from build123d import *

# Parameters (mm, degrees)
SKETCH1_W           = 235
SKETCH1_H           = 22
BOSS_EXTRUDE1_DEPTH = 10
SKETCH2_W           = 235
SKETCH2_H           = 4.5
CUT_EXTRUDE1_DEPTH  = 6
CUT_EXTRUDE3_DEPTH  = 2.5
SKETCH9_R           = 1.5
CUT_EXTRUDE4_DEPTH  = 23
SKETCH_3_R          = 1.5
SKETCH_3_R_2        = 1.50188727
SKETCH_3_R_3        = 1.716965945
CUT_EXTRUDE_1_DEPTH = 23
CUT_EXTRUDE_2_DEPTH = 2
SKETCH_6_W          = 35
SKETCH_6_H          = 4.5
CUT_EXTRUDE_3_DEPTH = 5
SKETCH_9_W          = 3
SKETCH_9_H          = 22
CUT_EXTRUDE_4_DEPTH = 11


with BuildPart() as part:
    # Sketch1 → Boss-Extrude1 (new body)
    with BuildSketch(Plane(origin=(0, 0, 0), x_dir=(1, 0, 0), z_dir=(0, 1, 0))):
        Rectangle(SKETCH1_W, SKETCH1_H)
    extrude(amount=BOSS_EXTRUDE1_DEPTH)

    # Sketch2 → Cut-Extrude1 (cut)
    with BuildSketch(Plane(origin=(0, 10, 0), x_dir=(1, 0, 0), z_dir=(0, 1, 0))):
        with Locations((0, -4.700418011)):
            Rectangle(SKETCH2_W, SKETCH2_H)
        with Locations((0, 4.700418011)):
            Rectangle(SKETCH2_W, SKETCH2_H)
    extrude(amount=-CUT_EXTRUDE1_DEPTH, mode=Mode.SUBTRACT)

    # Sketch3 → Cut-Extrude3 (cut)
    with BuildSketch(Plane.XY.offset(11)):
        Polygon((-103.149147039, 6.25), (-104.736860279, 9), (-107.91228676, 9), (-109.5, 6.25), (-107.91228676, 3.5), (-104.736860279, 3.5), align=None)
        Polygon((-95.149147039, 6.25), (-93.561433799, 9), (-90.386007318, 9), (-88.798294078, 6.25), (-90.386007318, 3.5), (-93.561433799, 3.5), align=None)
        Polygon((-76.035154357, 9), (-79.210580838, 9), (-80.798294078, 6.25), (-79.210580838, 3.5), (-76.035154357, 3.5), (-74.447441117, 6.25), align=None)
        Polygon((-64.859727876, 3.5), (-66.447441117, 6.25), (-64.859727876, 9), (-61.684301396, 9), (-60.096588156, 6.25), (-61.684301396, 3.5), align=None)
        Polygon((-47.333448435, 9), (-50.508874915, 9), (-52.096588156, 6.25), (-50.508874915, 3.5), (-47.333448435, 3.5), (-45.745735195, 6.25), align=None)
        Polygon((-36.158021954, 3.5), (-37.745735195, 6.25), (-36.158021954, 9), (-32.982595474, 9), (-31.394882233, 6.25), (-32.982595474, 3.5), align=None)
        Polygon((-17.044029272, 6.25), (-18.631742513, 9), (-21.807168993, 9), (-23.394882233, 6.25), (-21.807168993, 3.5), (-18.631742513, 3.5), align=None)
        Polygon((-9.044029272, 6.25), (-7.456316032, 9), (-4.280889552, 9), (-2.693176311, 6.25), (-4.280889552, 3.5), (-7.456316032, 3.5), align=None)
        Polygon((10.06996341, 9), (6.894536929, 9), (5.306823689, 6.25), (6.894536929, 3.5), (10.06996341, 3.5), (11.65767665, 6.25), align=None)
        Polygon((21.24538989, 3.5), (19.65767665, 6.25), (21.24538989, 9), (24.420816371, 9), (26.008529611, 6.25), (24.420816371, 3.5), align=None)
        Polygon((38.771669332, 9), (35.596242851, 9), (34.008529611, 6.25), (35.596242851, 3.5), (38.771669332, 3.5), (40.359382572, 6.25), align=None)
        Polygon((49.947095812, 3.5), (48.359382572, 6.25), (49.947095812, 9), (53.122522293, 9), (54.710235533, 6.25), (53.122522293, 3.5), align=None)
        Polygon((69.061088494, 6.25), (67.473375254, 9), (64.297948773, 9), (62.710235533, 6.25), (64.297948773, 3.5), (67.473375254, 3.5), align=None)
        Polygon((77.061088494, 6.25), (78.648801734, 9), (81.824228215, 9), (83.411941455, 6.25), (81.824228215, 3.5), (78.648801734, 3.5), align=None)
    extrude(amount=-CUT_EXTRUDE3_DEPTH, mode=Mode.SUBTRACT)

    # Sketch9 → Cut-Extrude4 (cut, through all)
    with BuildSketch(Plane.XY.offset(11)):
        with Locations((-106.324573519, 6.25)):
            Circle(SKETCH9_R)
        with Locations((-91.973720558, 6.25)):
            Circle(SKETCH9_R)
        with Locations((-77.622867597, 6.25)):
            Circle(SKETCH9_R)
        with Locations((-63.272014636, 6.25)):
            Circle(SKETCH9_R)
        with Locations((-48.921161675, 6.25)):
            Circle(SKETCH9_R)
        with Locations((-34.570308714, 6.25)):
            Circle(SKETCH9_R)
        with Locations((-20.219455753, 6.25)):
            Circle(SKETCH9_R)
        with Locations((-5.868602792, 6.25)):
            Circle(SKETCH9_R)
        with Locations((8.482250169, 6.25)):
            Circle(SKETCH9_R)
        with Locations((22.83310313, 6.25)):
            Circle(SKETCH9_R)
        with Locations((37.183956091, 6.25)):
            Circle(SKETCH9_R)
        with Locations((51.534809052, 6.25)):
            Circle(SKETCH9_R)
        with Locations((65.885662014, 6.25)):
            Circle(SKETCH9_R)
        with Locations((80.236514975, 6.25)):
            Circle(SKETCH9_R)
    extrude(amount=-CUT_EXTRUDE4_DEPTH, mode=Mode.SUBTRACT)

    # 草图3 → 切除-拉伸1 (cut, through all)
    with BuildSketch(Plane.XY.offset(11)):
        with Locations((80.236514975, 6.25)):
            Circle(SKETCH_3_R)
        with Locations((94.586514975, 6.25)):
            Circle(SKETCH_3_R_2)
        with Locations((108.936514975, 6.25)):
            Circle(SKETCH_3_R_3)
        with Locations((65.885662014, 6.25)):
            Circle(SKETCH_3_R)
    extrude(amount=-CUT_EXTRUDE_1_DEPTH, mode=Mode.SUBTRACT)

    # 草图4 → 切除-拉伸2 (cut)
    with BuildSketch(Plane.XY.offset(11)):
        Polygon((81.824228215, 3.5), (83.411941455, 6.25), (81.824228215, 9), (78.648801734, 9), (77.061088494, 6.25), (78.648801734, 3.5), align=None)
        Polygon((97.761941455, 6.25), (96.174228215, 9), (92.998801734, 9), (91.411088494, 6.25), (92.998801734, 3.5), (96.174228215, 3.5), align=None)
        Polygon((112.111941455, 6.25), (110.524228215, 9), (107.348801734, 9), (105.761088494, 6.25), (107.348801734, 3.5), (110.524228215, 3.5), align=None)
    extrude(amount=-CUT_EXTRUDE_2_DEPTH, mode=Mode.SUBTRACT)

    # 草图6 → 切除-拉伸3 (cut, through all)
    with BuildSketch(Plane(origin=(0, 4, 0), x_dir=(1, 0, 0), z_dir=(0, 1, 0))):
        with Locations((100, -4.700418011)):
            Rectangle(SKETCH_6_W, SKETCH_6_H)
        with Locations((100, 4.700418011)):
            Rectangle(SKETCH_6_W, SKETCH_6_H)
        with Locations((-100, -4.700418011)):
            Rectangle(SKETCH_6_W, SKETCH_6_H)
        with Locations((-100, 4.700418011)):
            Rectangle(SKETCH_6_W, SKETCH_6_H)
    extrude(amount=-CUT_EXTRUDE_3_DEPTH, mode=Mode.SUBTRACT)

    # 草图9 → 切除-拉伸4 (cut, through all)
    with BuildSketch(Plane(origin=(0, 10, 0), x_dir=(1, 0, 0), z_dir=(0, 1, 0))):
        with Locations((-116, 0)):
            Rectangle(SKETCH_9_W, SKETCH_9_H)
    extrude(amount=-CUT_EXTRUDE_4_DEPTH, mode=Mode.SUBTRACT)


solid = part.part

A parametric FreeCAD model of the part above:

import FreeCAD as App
import Part
import Sketcher
Q = App.Units.Quantity

doc = App.newDocument("Part")
body = doc.addObject("PartDesign::Body", "Body")

sketch1 = body.newObject("Sketcher::SketchObject", "Sketch")
sketch1.AttachmentSupport = (doc.getObject("XZ_Plane"), [""])
sketch1.MapMode = "FlatFace"
sketch1.addGeometry([
    Part.LineSegment(App.Vector(-118, -11, 0), App.Vector(-118, 11, 0)),
    Part.LineSegment(App.Vector(-118, 11, 0), App.Vector(118, 11, 0)),
    Part.LineSegment(App.Vector(118, 11, 0), App.Vector(118, -11, 0)),
    Part.LineSegment(App.Vector(118, -11, 0), App.Vector(-118, -11, 0)),
], False)
sketch1.addConstraint([
    Sketcher.Constraint("Coincident", 0, 2, 1, 1),
    Sketcher.Constraint("Coincident", 1, 2, 2, 1),
    Sketcher.Constraint("Coincident", 2, 2, 3, 1),
    Sketcher.Constraint("Coincident", 3, 2, 0, 1),
    Sketcher.Constraint("Vertical", 0),
    Sketcher.Constraint("Horizontal", 1),
    Sketcher.Constraint("Vertical", 2),
    Sketcher.Constraint("Horizontal", 3),
    Sketcher.Constraint("Symmetric", 0, 2, 2, 2, -1, 1),
    Sketcher.Constraint("DistanceX", 1, 1, 1, 2, 235.0),
    Sketcher.Constraint("DistanceY", 0, 1, 0, 2, 22.0),
])
pad1 = body.newObject("PartDesign::Pad", "Pad")
pad1.Profile = sketch1
pad1.Length = 10
pad1.Reversed = True

sketch2 = body.newObject("Sketcher::SketchObject", "Sketch001")
sketch2.AttachmentSupport = (doc.getObject("XZ_Plane"), [""])
sketch2.MapMode = "FlatFace"
sketch2.AttachmentOffset = App.Placement(App.Vector(0, 0, -10), App.Rotation())
sketch2.addGeometry([
    Part.LineSegment(App.Vector(-117.5, 2.5, 0), App.Vector(-117.5, 7, 0)),
    Part.LineSegment(App.Vector(-117.5, 7, 0), App.Vector(117.5, 7, 0)),
    Part.LineSegment(App.Vector(117.5, 7, 0), App.Vector(117.5, 2.5, 0)),
    Part.LineSegment(App.Vector(117.5, 2.5, 0), App.Vector(-117.5, 2.5, 0)),
    Part.LineSegment(App.Vector(-117.5, -7, 0), App.Vector(-117.5, -2.5, 0)),
    Part.LineSegment(App.Vector(-117.5, -2.5, 0), App.Vector(117.5, -2.5, 0)),
    Part.LineSegment(App.Vector(117.5, -2.5, 0), App.Vector(117.5, -7, 0)),
    Part.LineSegment(App.Vector(117.5, -7, 0), App.Vector(-117.5, -7, 0)),
], False)
sketch2.addConstraint([
    Sketcher.Constraint("Coincident", 0, 2, 1, 1),
    Sketcher.Constraint("Coincident", 1, 2, 2, 1),
    Sketcher.Constraint("Coincident", 2, 2, 3, 1),
    Sketcher.Constraint("Coincident", 3, 2, 0, 1),
    Sketcher.Constraint("Coincident", 4, 2, 5, 1),
    Sketcher.Constraint("Coincident", 5, 2, 6, 1),
    Sketcher.Constraint("Coincident", 6, 2, 7, 1),
    Sketcher.Constraint("Coincident", 7, 2, 4, 1),
    Sketcher.Constraint("Vertical", 0),
    Sketcher.Constraint("Horizontal", 1),
    Sketcher.Constraint("Vertical", 2),
    Sketcher.Constraint("Horizontal", 3),
    Sketcher.Constraint("Vertical", 4),
    Sketcher.Constraint("Horizontal", 5),
    Sketcher.Constraint("Vertical", 6),
    Sketcher.Constraint("Horizontal", 7),
    Sketcher.Constraint("Symmetric", 2, 2, 4, 2, -1, 1),
    Sketcher.Constraint("Symmetric", 0, 2, 6, 2, -1, 1),
    Sketcher.Constraint("Vertical", 3, 2, 4, 2),
    Sketcher.Constraint("DistanceX", 1, 1, 1, 2, 235.0),
    Sketcher.Constraint("DistanceY", 0, 1, 0, 2, 4.5),
    Sketcher.Constraint("DistanceY", -1, 1, 0, 2, 6.950418),
])
pocket1 = body.newObject("PartDesign::Pocket", "Pocket")
pocket1.Profile = sketch2
pocket1.Length = 6
pocket1.Reversed = True

sketch3 = body.newObject("Sketcher::SketchObject", "Sketch002")
sketch3.AttachmentSupport = (doc.getObject("XY_Plane"), [""])
sketch3.MapMode = "FlatFace"
sketch3.AttachmentOffset = App.Placement(App.Vector(0, 0, 11), App.Rotation())
sketch3.addGeometry([
    Part.LineSegment(App.Vector(-103.1, 6.2, 0), App.Vector(-104.7, 9, 0)),
    Part.LineSegment(App.Vector(-104.7, 9, 0), App.Vector(-107.9, 9, 0)),
    Part.LineSegment(App.Vector(-107.9, 9, 0), App.Vector(-109.5, 6.2, 0)),
    Part.LineSegment(App.Vector(-109.5, 6.2, 0), App.Vector(-107.9, 3.5, 0)),
    Part.LineSegment(App.Vector(-107.9, 3.5, 0), App.Vector(-104.7, 3.5, 0)),
    Part.LineSegment(App.Vector(-104.7, 3.5, 0), App.Vector(-103.1, 6.2, 0)),
    Part.LineSegment(App.Vector(-93.6, 9, 0), App.Vector(-95.1, 6.2, 0)),
    Part.LineSegment(App.Vector(-95.1, 6.2, 0), App.Vector(-93.6, 3.5, 0)),
    Part.LineSegment(App.Vector(-93.6, 3.5, 0), App.Vector(-90.4, 3.5, 0)),
    Part.LineSegment(App.Vector(-90.4, 3.5, 0), App.Vector(-88.8, 6.2, 0)),
    Part.LineSegment(App.Vector(-88.8, 6.2, 0), App.Vector(-90.4, 9, 0)),
    Part.LineSegment(App.Vector(-90.4, 9, 0), App.Vector(-93.6, 9, 0)),
    Part.LineSegment(App.Vector(-76, 9, 0), App.Vector(-79.2, 9, 0)),
    Part.LineSegment(App.Vector(-79.2, 9, 0), App.Vector(-80.8, 6.2, 0)),
    Part.LineSegment(App.Vector(-80.8, 6.2, 0), App.Vector(-79.2, 3.5, 0)),
    Part.LineSegment(App.Vector(-79.2, 3.5, 0), App.Vector(-76, 3.5, 0)),
    Part.LineSegment(App.Vector(-76, 3.5, 0), App.Vector(-74.4, 6.2, 0)),
    Part.LineSegment(App.Vector(-74.4, 6.2, 0), App.Vector(-76, 9, 0)),
    Part.LineSegment(App.Vector(-66.4, 6.2, 0), App.Vector(-64.9, 3.5, 0)),
    Part.LineSegment(App.Vector(-64.9, 3.5, 0), App.Vector(-61.7, 3.5, 0)),
    Part.LineSegment(App.Vector(-61.7, 3.5, 0), App.Vector(-60.1, 6.2, 0)),
    Part.LineSegment(App.Vector(-60.1, 6.2, 0), App.Vector(-61.7, 9, 0)),
    Part.LineSegment(App.Vector(-61.7, 9, 0), App.Vector(-64.9, 9, 0)),
    Part.LineSegment(App.Vector(-64.9, 9, 0), App.Vector(-66.4, 6.2, 0)),
    Part.LineSegment(App.Vector(-47.3, 9, 0), App.Vector(-50.5, 9, 0)),
    Part.LineSegment(App.Vector(-50.5, 9, 0), App.Vector(-52.1, 6.2, 0)),
    Part.LineSegment(App.Vector(-52.1, 6.2, 0), App.Vector(-50.5, 3.5, 0)),
    Part.LineSegment(App.Vector(-50.5, 3.5, 0), App.Vector(-47.3, 3.5, 0)),
    Part.LineSegment(App.Vector(-47.3, 3.5, 0), App.Vector(-45.7, 6.2, 0)),
    Part.LineSegment(App.Vector(-45.7, 6.2, 0), App.Vector(-47.3, 9, 0)),
    Part.LineSegment(App.Vector(-37.7, 6.2, 0), App.Vector(-36.2, 3.5, 0)),
    Part.LineSegment(App.Vector(-36.2, 3.5, 0), App.Vector(-33, 3.5, 0)),
    Part.LineSegment(App.Vector(-33, 3.5, 0), App.Vector(-31.4, 6.2, 0)),
    Part.LineSegment(App.Vector(-31.4, 6.2, 0), App.Vector(-33, 9, 0)),
    Part.LineSegment(App.Vector(-33, 9, 0), App.Vector(-36.2, 9, 0)),
    Part.LineSegment(App.Vector(-36.2, 9, 0), App.Vector(-37.7, 6.2, 0)),
    Part.LineSegment(App.Vector(-17, 6.2, 0), App.Vector(-18.6, 9, 0)),
    Part.LineSegment(App.Vector(-18.6, 9, 0), App.Vector(-21.8, 9, 0)),
    Part.LineSegment(App.Vector(-21.8, 9, 0), App.Vector(-23.4, 6.2, 0)),
    Part.LineSegment(App.Vector(-23.4, 6.2, 0), App.Vector(-21.8, 3.5, 0)),
    Part.LineSegment(App.Vector(-21.8, 3.5, 0), App.Vector(-18.6, 3.5, 0)),
    Part.LineSegment(App.Vector(-18.6, 3.5, 0), App.Vector(-17, 6.2, 0)),
    Part.LineSegment(App.Vector(-7.5, 9, 0), App.Vector(-9, 6.2, 0)),
    Part.LineSegment(App.Vector(-9, 6.2, 0), App.Vector(-7.5, 3.5, 0)),
    Part.LineSegment(App.Vector(-7.5, 3.5, 0), App.Vector(-4.3, 3.5, 0)),
    Part.LineSegment(App.Vector(-4.3, 3.5, 0), App.Vector(-2.7, 6.2, 0)),
    Part.LineSegment(App.Vector(-2.7, 6.2, 0), App.Vector(-4.3, 9, 0)),
    Part.LineSegment(App.Vector(-4.3, 9, 0), App.Vector(-7.5, 9, 0)),
    Part.LineSegment(App.Vector(10.1, 9, 0), App.Vector(6.9, 9, 0)),
    Part.LineSegment(App.Vector(6.9, 9, 0), App.Vector(5.3, 6.2, 0)),
    Part.LineSegment(App.Vector(5.3, 6.2, 0), App.Vector(6.9, 3.5, 0)),
    Part.LineSegment(App.Vector(6.9, 3.5, 0), App.Vector(10.1, 3.5, 0)),
    Part.LineSegment(App.Vector(10.1, 3.5, 0), App.Vector(11.7, 6.2, 0)),
    Part.LineSegment(App.Vector(11.7, 6.2, 0), App.Vector(10.1, 9, 0)),
    Part.LineSegment(App.Vector(19.7, 6.2, 0), App.Vector(21.2, 3.5, 0)),
    Part.LineSegment(App.Vector(21.2, 3.5, 0), App.Vector(24.4, 3.5, 0)),
    Part.LineSegment(App.Vector(24.4, 3.5, 0), App.Vector(26, 6.2, 0)),
    Part.LineSegment(App.Vector(26, 6.2, 0), App.Vector(24.4, 9, 0)),
    Part.LineSegment(App.Vector(24.4, 9, 0), App.Vector(21.2, 9, 0)),
    Part.LineSegment(App.Vector(21.2, 9, 0), App.Vector(19.7, 6.2, 0)),
    Part.LineSegment(App.Vector(38.8, 9, 0), App.Vector(35.6, 9, 0)),
    Part.LineSegment(App.Vector(35.6, 9, 0), App.Vector(34, 6.2, 0)),
    Part.LineSegment(App.Vector(34, 6.2, 0), App.Vector(35.6, 3.5, 0)),
    Part.LineSegment(App.Vector(35.6, 3.5, 0), App.Vector(38.8, 3.5, 0)),
    Part.LineSegment(App.Vector(38.8, 3.5, 0), App.Vector(40.4, 6.2, 0)),
    Part.LineSegment(App.Vector(40.4, 6.2, 0), App.Vector(38.8, 9, 0)),
    Part.LineSegment(App.Vector(48.4, 6.2, 0), App.Vector(49.9, 3.5, 0)),
    Part.LineSegment(App.Vector(49.9, 3.5, 0), App.Vector(53.1, 3.5, 0)),
    Part.LineSegment(App.Vector(53.1, 3.5, 0), App.Vector(54.7, 6.2, 0)),
    Part.LineSegment(App.Vector(54.7, 6.2, 0), App.Vector(53.1, 9, 0)),
    Part.LineSegment(App.Vector(53.1, 9, 0), App.Vector(49.9, 9, 0)),
    Part.LineSegment(App.Vector(49.9, 9, 0), App.Vector(48.4, 6.2, 0)),
    Part.LineSegment(App.Vector(69.1, 6.2, 0), App.Vector(67.5, 9, 0)),
    Part.LineSegment(App.Vector(67.5, 9, 0), App.Vector(64.3, 9, 0)),
    Part.LineSegment(App.Vector(64.3, 9, 0), App.Vector(62.7, 6.2, 0)),
    Part.LineSegment(App.Vector(62.7, 6.2, 0), App.Vector(64.3, 3.5, 0)),
    Part.LineSegment(App.Vector(64.3, 3.5, 0), App.Vector(67.5, 3.5, 0)),
    Part.LineSegment(App.Vector(67.5, 3.5, 0), App.Vector(69.1, 6.2, 0)),
    Part.LineSegment(App.Vector(78.6, 9, 0), App.Vector(77.1, 6.2, 0)),
    Part.LineSegment(App.Vector(77.1, 6.2, 0), App.Vector(78.6, 3.5, 0)),
    Part.LineSegment(App.Vector(78.6, 3.5, 0), App.Vector(81.8, 3.5, 0)),
    Part.LineSegment(App.Vector(81.8, 3.5, 0), App.Vector(83.4, 6.2, 0)),
    Part.LineSegment(App.Vector(83.4, 6.2, 0), App.Vector(81.8, 9, 0)),
    Part.LineSegment(App.Vector(81.8, 9, 0), App.Vector(78.6, 9, 0)),
], False)
sketch3.addConstraint([
    Sketcher.Constraint("Coincident", 0, 2, 1, 1),
    Sketcher.Constraint("Coincident", 1, 2, 2, 1),
    Sketcher.Constraint("Coincident", 2, 2, 3, 1),
    Sketcher.Constraint("Coincident", 3, 2, 4, 1),
    Sketcher.Constraint("Coincident", 4, 2, 5, 1),
    Sketcher.Constraint("Coincident", 5, 2, 0, 1),
    Sketcher.Constraint("Coincident", 6, 2, 7, 1),
    Sketcher.Constraint("Coincident", 7, 2, 8, 1),
    Sketcher.Constraint("Coincident", 8, 2, 9, 1),
    Sketcher.Constraint("Coincident", 9, 2, 10, 1),
    Sketcher.Constraint("Coincident", 10, 2, 11, 1),
    Sketcher.Constraint("Coincident", 11, 2, 6, 1),
    Sketcher.Constraint("Coincident", 12, 2, 13, 1),
    Sketcher.Constraint("Coincident", 13, 2, 14, 1),
    Sketcher.Constraint("Coincident", 14, 2, 15, 1),
    Sketcher.Constraint("Coincident", 15, 2, 16, 1),
    Sketcher.Constraint("Coincident", 16, 2, 17, 1),
    Sketcher.Constraint("Coincident", 17, 2, 12, 1),
    Sketcher.Constraint("Coincident", 18, 2, 19, 1),
    Sketcher.Constraint("Coincident", 19, 2, 20, 1),
    Sketcher.Constraint("Coincident", 20, 2, 21, 1),
    Sketcher.Constraint("Coincident", 21, 2, 22, 1),
    Sketcher.Constraint("Coincident", 22, 2, 23, 1),
    Sketcher.Constraint("Coincident", 23, 2, 18, 1),
    Sketcher.Constraint("Coincident", 24, 2, 25, 1),
    Sketcher.Constraint("Coincident", 25, 2, 26, 1),
    Sketcher.Constraint("Coincident", 26, 2, 27, 1),
    Sketcher.Constraint("Coincident", 27, 2, 28, 1),
    Sketcher.Constraint("Coincident", 28, 2, 29, 1),
    Sketcher.Constraint("Coincident", 29, 2, 24, 1),
    Sketcher.Constraint("Coincident", 30, 2, 31, 1),
    Sketcher.Constraint("Coincident", 31, 2, 32, 1),
    Sketcher.Constraint("Coincident", 32, 2, 33, 1),
    Sketcher.Constraint("Coincident", 33, 2, 34, 1),
    Sketcher.Constraint("Coincident", 34, 2, 35, 1),
    Sketcher.Constraint("Coincident", 35, 2, 30, 1),
    Sketcher.Constraint("Coincident", 36, 2, 37, 1),
    Sketcher.Constraint("Coincident", 37, 2, 38, 1),
    Sketcher.Constraint("Coincident", 38, 2, 39, 1),
    Sketcher.Constraint("Coincident", 39, 2, 40, 1),
    Sketcher.Constraint("Coincident", 40, 2, 41, 1),
    Sketcher.Constraint("Coincident", 41, 2, 36, 1),
    Sketcher.Constraint("Coincident", 42, 2, 43, 1),
    Sketcher.Constraint("Coincident", 43, 2, 44, 1),
    Sketcher.Constraint("Coincident", 44, 2, 45, 1),
    Sketcher.Constraint("Coincident", 45, 2, 46, 1),
    Sketcher.Constraint("Coincident", 46, 2, 47, 1),
    Sketcher.Constraint("Coincident", 47, 2, 42, 1),
    Sketcher.Constraint("Coincident", 48, 2, 49, 1),
    Sketcher.Constraint("Coincident", 49, 2, 50, 1),
    Sketcher.Constraint("Coincident", 50, 2, 51, 1),
    Sketcher.Constraint("Coincident", 51, 2, 52, 1),
    Sketcher.Constraint("Coincident", 52, 2, 53, 1),
    Sketcher.Constraint("Coincident", 53, 2, 48, 1),
    Sketcher.Constraint("Coincident", 54, 2, 55, 1),
    Sketcher.Constraint("Coincident", 55, 2, 56, 1),
    Sketcher.Constraint("Coincident", 56, 2, 57, 1),
    Sketcher.Constraint("Coincident", 57, 2, 58, 1),
    Sketcher.Constraint("Coincident", 58, 2, 59, 1),
    Sketcher.Constraint("Coincident", 59, 2, 54, 1),
    Sketcher.Constraint("Coincident", 60, 2, 61, 1),
    Sketcher.Constraint("Coincident", 61, 2, 62, 1),
    Sketcher.Constraint("Coincident", 62, 2, 63, 1),
    Sketcher.Constraint("Coincident", 63, 2, 64, 1),
    Sketcher.Constraint("Coincident", 64, 2, 65, 1),
    Sketcher.Constraint("Coincident", 65, 2, 60, 1),
    Sketcher.Constraint("Coincident", 66, 2, 67, 1),
    Sketcher.Constraint("Coincident", 67, 2, 68, 1),
    Sketcher.Constraint("Coincident", 68, 2, 69, 1),
    Sketcher.Constraint("Coincident", 69, 2, 70, 1),
    Sketcher.Constraint("Coincident", 70, 2, 71, 1),
    Sketcher.Constraint("Coincident", 71, 2, 66, 1),
    Sketcher.Constraint("Coincident", 72, 2, 73, 1),
    Sketcher.Constraint("Coincident", 73, 2, 74, 1),
    Sketcher.Constraint("Coincident", 74, 2, 75, 1),
    Sketcher.Constraint("Coincident", 75, 2, 76, 1),
    Sketcher.Constraint("Coincident", 76, 2, 77, 1),
    Sketcher.Constraint("Coincident", 77, 2, 72, 1),
    Sketcher.Constraint("Coincident", 78, 2, 79, 1),
    Sketcher.Constraint("Coincident", 79, 2, 80, 1),
    Sketcher.Constraint("Coincident", 80, 2, 81, 1),
    Sketcher.Constraint("Coincident", 81, 2, 82, 1),
    Sketcher.Constraint("Coincident", 82, 2, 83, 1),
    Sketcher.Constraint("Coincident", 83, 2, 78, 1),
    Sketcher.Constraint("Horizontal", 1),
    Sketcher.Constraint("Horizontal", 4),
    Sketcher.Constraint("Horizontal", 8),
    Sketcher.Constraint("Horizontal", 11),
    Sketcher.Constraint("Horizontal", 12),
    Sketcher.Constraint("Horizontal", 15),
    Sketcher.Constraint("Horizontal", 19),
    Sketcher.Constraint("Horizontal", 22),
    Sketcher.Constraint("Horizontal", 24),
    Sketcher.Constraint("Horizontal", 27),
    Sketcher.Constraint("Horizontal", 31),
    Sketcher.Constraint("Horizontal", 34),
    Sketcher.Constraint("Horizontal", 37),
    Sketcher.Constraint("Horizontal", 40),
    Sketcher.Constraint("Horizontal", 44),
    Sketcher.Constraint("Horizontal", 47),
    Sketcher.Constraint("Horizontal", 48),
    Sketcher.Constraint("Horizontal", 51),
    Sketcher.Constraint("Horizontal", 55),
    Sketcher.Constraint("Horizontal", 58),
    Sketcher.Constraint("Horizontal", 60),
    Sketcher.Constraint("Horizontal", 63),
    Sketcher.Constraint("Horizontal", 67),
    Sketcher.Constraint("Horizontal", 70),
    Sketcher.Constraint("Horizontal", 73),
    Sketcher.Constraint("Horizontal", 76),
    Sketcher.Constraint("Horizontal", 80),
    Sketcher.Constraint("Horizontal", 83),
    Sketcher.Constraint("Parallel", 0, 3),
    Sketcher.Constraint("Parallel", 2, 5),
    Sketcher.Constraint("Parallel", 5, 6),
    Sketcher.Constraint("Parallel", 3, 7),
    Sketcher.Constraint("Parallel", 6, 9),
    Sketcher.Constraint("Parallel", 7, 10),
    Sketcher.Constraint("Parallel", 9, 13),
    Sketcher.Constraint("Parallel", 10, 14),
    Sketcher.Constraint("Parallel", 13, 16),
    Sketcher.Constraint("Parallel", 14, 17),
    Sketcher.Constraint("Parallel", 17, 18),
    Sketcher.Constraint("Parallel", 16, 20),
    Sketcher.Constraint("Parallel", 18, 21),
    Sketcher.Constraint("Parallel", 20, 23),
    Sketcher.Constraint("Parallel", 23, 25),
    Sketcher.Constraint("Parallel", 21, 26),
    Sketcher.Constraint("Parallel", 25, 28),
    Sketcher.Constraint("Parallel", 26, 29),
    Sketcher.Constraint("Parallel", 29, 30),
    Sketcher.Constraint("Parallel", 28, 32),
    Sketcher.Constraint("Parallel", 30, 33),
    Sketcher.Constraint("Parallel", 32, 35),
    Sketcher.Constraint("Parallel", 33, 36),
    Sketcher.Constraint("Parallel", 35, 38),
    Sketcher.Constraint("Parallel", 36, 39),
    Sketcher.Constraint("Parallel", 38, 41),
    Sketcher.Constraint("Parallel", 41, 42),
    Sketcher.Constraint("Parallel", 39, 43),
    Sketcher.Constraint("Parallel", 42, 45),
    Sketcher.Constraint("Parallel", 43, 46),
    Sketcher.Constraint("Parallel", 45, 49),
    Sketcher.Constraint("Parallel", 46, 50),
    Sketcher.Constraint("Parallel", 49, 52),
    Sketcher.Constraint("Parallel", 50, 53),
    Sketcher.Constraint("Parallel", 53, 54),
    Sketcher.Constraint("Parallel", 52, 56),
    Sketcher.Constraint("Parallel", 54, 57),
    Sketcher.Constraint("Parallel", 56, 59),
    Sketcher.Constraint("Parallel", 59, 61),
    Sketcher.Constraint("Parallel", 57, 62),
    Sketcher.Constraint("Parallel", 61, 64),
    Sketcher.Constraint("Parallel", 62, 65),
    Sketcher.Constraint("Parallel", 65, 66),
    Sketcher.Constraint("Parallel", 64, 68),
    Sketcher.Constraint("Parallel", 66, 69),
    Sketcher.Constraint("Parallel", 68, 71),
    Sketcher.Constraint("Parallel", 69, 72),
    Sketcher.Constraint("Parallel", 71, 74),
    Sketcher.Constraint("Parallel", 72, 75),
    Sketcher.Constraint("Parallel", 74, 77),
    Sketcher.Constraint("Parallel", 77, 78),
    Sketcher.Constraint("Parallel", 75, 79),
    Sketcher.Constraint("Parallel", 78, 81),
    Sketcher.Constraint("Parallel", 79, 82),
    Sketcher.Constraint("Horizontal", 2, 2, 5, 2),
    Sketcher.Constraint("Horizontal", 5, 2, 6, 2),
    Sketcher.Constraint("Horizontal", 4, 2, 7, 2),
    Sketcher.Constraint("Horizontal", 6, 2, 9, 2),
    Sketcher.Constraint("Horizontal", 1, 2, 10, 2),
    Sketcher.Constraint("Horizontal", 11, 2, 12, 2),
    Sketcher.Constraint("Horizontal", 9, 2, 13, 2),
    Sketcher.Constraint("Horizontal", 8, 2, 14, 2),
    Sketcher.Constraint("Horizontal", 13, 2, 16, 2),
    Sketcher.Constraint("Horizontal", 15, 2, 18, 2),
    Sketcher.Constraint("Horizontal", 16, 2, 20, 2),
    Sketcher.Constraint("Horizontal", 17, 2, 21, 2),
    Sketcher.Constraint("Horizontal", 20, 2, 23, 2),
    Sketcher.Constraint("Horizontal", 22, 2, 24, 2),
    Sketcher.Constraint("Horizontal", 23, 2, 25, 2),
    Sketcher.Constraint("Horizontal", 19, 2, 26, 2),
    Sketcher.Constraint("Horizontal", 25, 2, 28, 2),
    Sketcher.Constraint("Horizontal", 27, 2, 30, 2),
    Sketcher.Constraint("Horizontal", 28, 2, 32, 2),
    Sketcher.Constraint("Horizontal", 29, 2, 33, 2),
    Sketcher.Constraint("Horizontal", 32, 2, 35, 2),
    Sketcher.Constraint("Horizontal", 34, 2, 36, 2),
    Sketcher.Constraint("Horizontal", 35, 2, 38, 2),
    Sketcher.Constraint("Horizontal", 31, 2, 39, 2),
    Sketcher.Constraint("Horizontal", 38, 2, 41, 2),
    Sketcher.Constraint("Horizontal", 41, 2, 42, 2),
    Sketcher.Constraint("Horizontal", 40, 2, 43, 2),
    Sketcher.Constraint("Horizontal", 42, 2, 45, 2),
    Sketcher.Constraint("Horizontal", 37, 2, 46, 2),
    Sketcher.Constraint("Horizontal", 47, 2, 48, 2),
    Sketcher.Constraint("Horizontal", 45, 2, 49, 2),
    Sketcher.Constraint("Horizontal", 44, 2, 50, 2),
    Sketcher.Constraint("Horizontal", 49, 2, 52, 2),
    Sketcher.Constraint("Horizontal", 51, 2, 54, 2),
    Sketcher.Constraint("Horizontal", 52, 2, 56, 2),
    Sketcher.Constraint("Horizontal", 53, 2, 57, 2),
    Sketcher.Constraint("Horizontal", 56, 2, 59, 2),
    Sketcher.Constraint("Horizontal", 58, 2, 60, 2),
    Sketcher.Constraint("Horizontal", 59, 2, 61, 2),
    Sketcher.Constraint("Horizontal", 55, 2, 62, 2),
    Sketcher.Constraint("Horizontal", 61, 2, 64, 2),
    Sketcher.Constraint("Horizontal", 63, 2, 66, 2),
    Sketcher.Constraint("Horizontal", 64, 2, 68, 2),
    Sketcher.Constraint("Horizontal", 65, 2, 69, 2),
    Sketcher.Constraint("Horizontal", 68, 2, 71, 2),
    Sketcher.Constraint("Horizontal", 70, 2, 72, 2),
    Sketcher.Constraint("Horizontal", 71, 2, 74, 2),
    Sketcher.Constraint("Horizontal", 67, 2, 75, 2),
    Sketcher.Constraint("Horizontal", 74, 2, 77, 2),
    Sketcher.Constraint("Horizontal", 77, 2, 78, 2),
    Sketcher.Constraint("Horizontal", 76, 2, 79, 2),
    Sketcher.Constraint("Horizontal", 78, 2, 81, 2),
    Sketcher.Constraint("Horizontal", 73, 2, 82, 2),
    Sketcher.Constraint("Vertical", 1, 2, 3, 2),
    Sketcher.Constraint("Vertical", 0, 2, 4, 2),
    Sketcher.Constraint("Equal", 4, 8),
    Sketcher.Constraint("Equal", 11, 12),
    Sketcher.Constraint("Equal", 15, 19),
    Sketcher.Constraint("Equal", 22, 24),
    Sketcher.Constraint("Equal", 27, 31),
    Sketcher.Constraint("Equal", 34, 37),
    Sketcher.Constraint("Equal", 40, 44),
    Sketcher.Constraint("Equal", 47, 48),
    Sketcher.Constraint("Equal", 51, 55),
    Sketcher.Constraint("Equal", 58, 60),
    Sketcher.Constraint("Equal", 63, 67),
    Sketcher.Constraint("Equal", 70, 73),
    Sketcher.Constraint("Equal", 76, 80),
    Sketcher.Constraint("Angle", 0, Q("120 deg")),
    Sketcher.Constraint("DistanceY", -1, 1, 0, 2, 9.0),
    Sketcher.Constraint("DistanceX", 2, 2, -1, 1, 109.5),
    Sketcher.Constraint("DistanceY", -1, 1, 3, 2, 3.5),
    Sketcher.Constraint("DistanceX", 19, 2, -1, 1, 61.684301),
    Sketcher.Constraint("DistanceX", -1, 1, 79, 2, 78.648802),
    Sketcher.Constraint("DistanceX", 1, 2, 1, 1, 3.175426),
    Sketcher.Constraint("DistanceX", 12, 2, -1, 1, 79.210581),
    Sketcher.Constraint("DistanceX", 25, 2, -1, 1, 52.096588),
    Sketcher.Constraint("DistanceX", 30, 2, -1, 1, 36.158022),
    Sketcher.Constraint("DistanceX", 37, 2, -1, 1, 21.807169),
    Sketcher.Constraint("DistanceX", 42, 2, -1, 1, 9.044029),
    Sketcher.Constraint("DistanceX", -1, 1, 54, 2, 21.24539),
    Sketcher.Constraint("DistanceX", -1, 1, 61, 2, 34.00853),
    Sketcher.Constraint("DistanceX", -1, 1, 73, 2, 64.297949),
    Sketcher.Constraint("DistanceX", 6, 2, -1, 1, 95.149147),
    Sketcher.Constraint("DistanceX", -1, 1, 48, 2, 6.894537),
    Sketcher.Constraint("DistanceX", -1, 1, 66, 2, 49.947096),
])
pocket2 = body.newObject("PartDesign::Pocket", "Pocket001")
pocket2.Profile = sketch3
pocket2.Length = 2.5

sketch4 = body.newObject("Sketcher::SketchObject", "Sketch003")
sketch4.AttachmentSupport = (doc.getObject("XY_Plane"), [""])
sketch4.MapMode = "FlatFace"
sketch4.AttachmentOffset = App.Placement(App.Vector(0, 0, 11), App.Rotation())
sketch4.addGeometry([
    Part.Circle(App.Vector(-106.3, 6.2, 0), App.Vector(0, 0, 1), 1.5),
    Part.Circle(App.Vector(-92, 6.2, 0), App.Vector(0, 0, 1), 1.5),
    Part.Circle(App.Vector(-77.6, 6.2, 0), App.Vector(0, 0, 1), 1.5),
    Part.Circle(App.Vector(-63.3, 6.2, 0), App.Vector(0, 0, 1), 1.5),
    Part.Circle(App.Vector(-48.9, 6.2, 0), App.Vector(0, 0, 1), 1.5),
    Part.Circle(App.Vector(-34.6, 6.2, 0), App.Vector(0, 0, 1), 1.5),
    Part.Circle(App.Vector(-20.2, 6.2, 0), App.Vector(0, 0, 1), 1.5),
    Part.Circle(App.Vector(-5.9, 6.2, 0), App.Vector(0, 0, 1), 1.5),
    Part.Circle(App.Vector(8.5, 6.2, 0), App.Vector(0, 0, 1), 1.5),
    Part.Circle(App.Vector(22.8, 6.2, 0), App.Vector(0, 0, 1), 1.5),
    Part.Circle(App.Vector(37.2, 6.2, 0), App.Vector(0, 0, 1), 1.5),
    Part.Circle(App.Vector(51.5, 6.2, 0), App.Vector(0, 0, 1), 1.5),
    Part.Circle(App.Vector(65.9, 6.2, 0), App.Vector(0, 0, 1), 1.5),
    Part.Circle(App.Vector(80.2, 6.2, 0), App.Vector(0, 0, 1), 1.5),
], False)
sketch4.addConstraint([
    Sketcher.Constraint("Equal", 0, 1),
    Sketcher.Constraint("Equal", 1, 2),
    Sketcher.Constraint("Equal", 2, 3),
    Sketcher.Constraint("Equal", 3, 4),
    Sketcher.Constraint("Equal", 4, 5),
    Sketcher.Constraint("Equal", 5, 6),
    Sketcher.Constraint("Equal", 6, 7),
    Sketcher.Constraint("Equal", 7, 8),
    Sketcher.Constraint("Equal", 8, 9),
    Sketcher.Constraint("Equal", 9, 10),
    Sketcher.Constraint("Equal", 10, 11),
    Sketcher.Constraint("Equal", 11, 12),
    Sketcher.Constraint("Equal", 12, 13),
    Sketcher.Constraint("Horizontal", 0, 3, 1, 3),
    Sketcher.Constraint("Horizontal", 1, 3, 2, 3),
    Sketcher.Constraint("Horizontal", 2, 3, 3, 3),
    Sketcher.Constraint("Horizontal", 3, 3, 4, 3),
    Sketcher.Constraint("Horizontal", 4, 3, 5, 3),
    Sketcher.Constraint("Horizontal", 5, 3, 6, 3),
    Sketcher.Constraint("Horizontal", 6, 3, 7, 3),
    Sketcher.Constraint("Horizontal", 7, 3, 8, 3),
    Sketcher.Constraint("Horizontal", 8, 3, 9, 3),
    Sketcher.Constraint("Horizontal", 9, 3, 10, 3),
    Sketcher.Constraint("Horizontal", 10, 3, 11, 3),
    Sketcher.Constraint("Horizontal", 11, 3, 12, 3),
    Sketcher.Constraint("Horizontal", 12, 3, 13, 3),
    Sketcher.Constraint("Diameter", 0, 3.0),
    Sketcher.Constraint("DistanceY", -1, 1, 0, 3, 6.25),
    Sketcher.Constraint("DistanceX", 1, 3, -1, 1, 91.973721),
    Sketcher.Constraint("DistanceX", 4, 3, -1, 1, 48.921162),
    Sketcher.Constraint("DistanceX", 5, 3, -1, 1, 34.570309),
    Sketcher.Constraint("DistanceX", -1, 1, 8, 3, 8.48225),
    Sketcher.Constraint("DistanceX", -1, 1, 11, 3, 51.534809),
    Sketcher.Constraint("DistanceX", 0, 3, 3, 3, 43.052559),
    Sketcher.Constraint("DistanceX", 0, 3, 4, 3, 57.403412),
    Sketcher.Constraint("DistanceX", 2, 3, 5, 3, 43.052559),
    Sketcher.Constraint("DistanceX", 3, 3, 6, 3, 43.052559),
    Sketcher.Constraint("DistanceX", 4, 3, 7, 3, 43.052559),
    Sketcher.Constraint("DistanceX", 6, 3, 9, 3, 43.052559),
    Sketcher.Constraint("DistanceX", 7, 3, 10, 3, 43.052559),
    Sketcher.Constraint("DistanceX", 9, 3, 12, 3, 43.052559),
    Sketcher.Constraint("DistanceX", 10, 3, 13, 3, 43.052559),
])
pocket3 = body.newObject("PartDesign::Pocket", "Pocket002")
pocket3.Profile = sketch4
pocket3.Type = "ThroughAll"

sketch5 = body.newObject("Sketcher::SketchObject", "Sketch004")
sketch5.AttachmentSupport = (doc.getObject("XY_Plane"), [""])
sketch5.MapMode = "FlatFace"
sketch5.AttachmentOffset = App.Placement(App.Vector(0, 0, 11), App.Rotation())
sketch5.addGeometry([
    Part.Circle(App.Vector(80.2, 6.2, 0), App.Vector(0, 0, 1), 1.5),
    Part.Circle(App.Vector(94.6, 6.2, 0), App.Vector(0, 0, 1), 1.5),
    Part.Circle(App.Vector(108.9, 6.2, 0), App.Vector(0, 0, 1), 1.7),
    Part.Circle(App.Vector(65.9, 6.2, 0), App.Vector(0, 0, 1), 1.5),
], False)
sketch5.addConstraint([
    Sketcher.Constraint("Equal", 0, 3),
    Sketcher.Constraint("Horizontal", 0, 3, 1, 3),
    Sketcher.Constraint("Horizontal", 1, 3, 2, 3),
    Sketcher.Constraint("Horizontal", 2, 3, 3, 3),
    Sketcher.Constraint("Diameter", 0, 3.0),
    Sketcher.Constraint("DistanceX", 0, 3, 2, 3, 28.7),
    Sketcher.Constraint("Diameter", 2, 3.433932),
    Sketcher.Constraint("DistanceY", -1, 1, 0, 3, 6.25),
    Sketcher.Constraint("DistanceX", 0, 3, 1, 3, 14.35),
    Sketcher.Constraint("Diameter", 1, 3.003775),
    Sketcher.Constraint("DistanceX", -1, 1, 0, 3, 80.236515),
    Sketcher.Constraint("DistanceX", -1, 1, 3, 3, 65.885662),
])
pocket4 = body.newObject("PartDesign::Pocket", "Pocket003")
pocket4.Profile = sketch5
pocket4.Type = "ThroughAll"

sketch6 = body.newObject("Sketcher::SketchObject", "Sketch005")
sketch6.AttachmentSupport = (doc.getObject("XY_Plane"), [""])
sketch6.MapMode = "FlatFace"
sketch6.AttachmentOffset = App.Placement(App.Vector(0, 0, 11), App.Rotation())
sketch6.addGeometry([
    Part.LineSegment(App.Vector(81.8, 3.5, 0), App.Vector(83.4, 6.2, 0)),
    Part.LineSegment(App.Vector(83.4, 6.2, 0), App.Vector(81.8, 9, 0)),
    Part.LineSegment(App.Vector(81.8, 9, 0), App.Vector(78.6, 9, 0)),
    Part.LineSegment(App.Vector(78.6, 9, 0), App.Vector(77.1, 6.2, 0)),
    Part.LineSegment(App.Vector(77.1, 6.2, 0), App.Vector(78.6, 3.5, 0)),
    Part.LineSegment(App.Vector(78.6, 3.5, 0), App.Vector(81.8, 3.5, 0)),
    Part.LineSegment(App.Vector(97.8, 6.2, 0), App.Vector(96.2, 9, 0)),
    Part.LineSegment(App.Vector(96.2, 9, 0), App.Vector(93, 9, 0)),
    Part.LineSegment(App.Vector(93, 9, 0), App.Vector(91.4, 6.2, 0)),
    Part.LineSegment(App.Vector(91.4, 6.2, 0), App.Vector(93, 3.5, 0)),
    Part.LineSegment(App.Vector(93, 3.5, 0), App.Vector(96.2, 3.5, 0)),
    Part.LineSegment(App.Vector(96.2, 3.5, 0), App.Vector(97.8, 6.2, 0)),
    Part.LineSegment(App.Vector(112.1, 6.2, 0), App.Vector(110.5, 9, 0)),
    Part.LineSegment(App.Vector(110.5, 9, 0), App.Vector(107.3, 9, 0)),
    Part.LineSegment(App.Vector(107.3, 9, 0), App.Vector(105.8, 6.2, 0)),
    Part.LineSegment(App.Vector(105.8, 6.2, 0), App.Vector(107.3, 3.5, 0)),
    Part.LineSegment(App.Vector(107.3, 3.5, 0), App.Vector(110.5, 3.5, 0)),
    Part.LineSegment(App.Vector(110.5, 3.5, 0), App.Vector(112.1, 6.2, 0)),
], False)
sketch6.addConstraint([
    Sketcher.Constraint("Coincident", 0, 2, 1, 1),
    Sketcher.Constraint("Coincident", 1, 2, 2, 1),
    Sketcher.Constraint("Coincident", 2, 2, 3, 1),
    Sketcher.Constraint("Coincident", 3, 2, 4, 1),
    Sketcher.Constraint("Coincident", 4, 2, 5, 1),
    Sketcher.Constraint("Coincident", 5, 2, 0, 1),
    Sketcher.Constraint("Coincident", 6, 2, 7, 1),
    Sketcher.Constraint("Coincident", 7, 2, 8, 1),
    Sketcher.Constraint("Coincident", 8, 2, 9, 1),
    Sketcher.Constraint("Coincident", 9, 2, 10, 1),
    Sketcher.Constraint("Coincident", 10, 2, 11, 1),
    Sketcher.Constraint("Coincident", 11, 2, 6, 1),
    Sketcher.Constraint("Coincident", 12, 2, 13, 1),
    Sketcher.Constraint("Coincident", 13, 2, 14, 1),
    Sketcher.Constraint("Coincident", 14, 2, 15, 1),
    Sketcher.Constraint("Coincident", 15, 2, 16, 1),
    Sketcher.Constraint("Coincident", 16, 2, 17, 1),
    Sketcher.Constraint("Coincident", 17, 2, 12, 1),
    Sketcher.Constraint("Horizontal", 2),
    Sketcher.Constraint("Horizontal", 5),
    Sketcher.Constraint("Horizontal", 7),
    Sketcher.Constraint("Horizontal", 10),
    Sketcher.Constraint("Horizontal", 13),
    Sketcher.Constraint("Horizontal", 16),
    Sketcher.Constraint("Parallel", 0, 3),
    Sketcher.Constraint("Parallel", 1, 4),
    Sketcher.Constraint("Parallel", 4, 6),
    Sketcher.Constraint("Parallel", 3, 8),
    Sketcher.Constraint("Parallel", 6, 9),
    Sketcher.Constraint("Parallel", 8, 11),
    Sketcher.Constraint("Parallel", 9, 12),
    Sketcher.Constraint("Parallel", 11, 14),
    Sketcher.Constraint("Parallel", 12, 15),
    Sketcher.Constraint("Parallel", 14, 17),
    Sketcher.Constraint("Horizontal", 0, 2, 3, 2),
    Sketcher.Constraint("Horizontal", 2, 2, 6, 2),
    Sketcher.Constraint("Horizontal", 3, 2, 8, 2),
    Sketcher.Constraint("Horizontal", 5, 2, 9, 2),
    Sketcher.Constraint("Horizontal", 8, 2, 11, 2),
    Sketcher.Constraint("Horizontal", 7, 2, 12, 2),
    Sketcher.Constraint("Horizontal", 11, 2, 14, 2),
    Sketcher.Constraint("Horizontal", 10, 2, 15, 2),
    Sketcher.Constraint("Horizontal", 14, 2, 17, 2),
    Sketcher.Constraint("Vertical", 2, 2, 4, 2),
    Sketcher.Constraint("Vertical", 1, 2, 5, 2),
    Sketcher.Constraint("Equal", 5, 7),
    Sketcher.Constraint("Equal", 10, 13),
    Sketcher.Constraint("Angle", 0, Q("60 deg")),
    Sketcher.Constraint("DistanceY", -1, 1, 1, 2, 9.0),
    Sketcher.Constraint("DistanceY", -1, 1, 4, 2, 3.5),
    Sketcher.Constraint("DistanceX", 1, 2, 6, 2, 14.35),
    Sketcher.Constraint("DistanceX", 6, 2, 12, 2, 14.35),
    Sketcher.Constraint("DistanceX", -1, 1, 2, 2, 78.648802),
    Sketcher.Constraint("DistanceX", 2, 2, 2, 1, 3.175426),
])
pocket5 = body.newObject("PartDesign::Pocket", "Pocket004")
pocket5.Profile = sketch6
pocket5.Length = 2

sketch7 = body.newObject("Sketcher::SketchObject", "Sketch006")
sketch7.AttachmentSupport = (doc.getObject("XZ_Plane"), [""])
sketch7.MapMode = "FlatFace"
sketch7.AttachmentOffset = App.Placement(App.Vector(0, 0, -4), App.Rotation())
sketch7.addGeometry([
    Part.LineSegment(App.Vector(82.5, 2.5, 0), App.Vector(82.5, 7, 0)),
    Part.LineSegment(App.Vector(82.5, 7, 0), App.Vector(117.5, 7, 0)),
    Part.LineSegment(App.Vector(117.5, 7, 0), App.Vector(117.5, 2.5, 0)),
    Part.LineSegment(App.Vector(117.5, 2.5, 0), App.Vector(82.5, 2.5, 0)),
    Part.LineSegment(App.Vector(82.5, -7, 0), App.Vector(82.5, -2.5, 0)),
    Part.LineSegment(App.Vector(82.5, -2.5, 0), App.Vector(117.5, -2.5, 0)),
    Part.LineSegment(App.Vector(117.5, -2.5, 0), App.Vector(117.5, -7, 0)),
    Part.LineSegment(App.Vector(117.5, -7, 0), App.Vector(82.5, -7, 0)),
    Part.LineSegment(App.Vector(-117.5, 2.5, 0), App.Vector(-117.5, 7, 0)),
    Part.LineSegment(App.Vector(-117.5, 7, 0), App.Vector(-82.5, 7, 0)),
    Part.LineSegment(App.Vector(-82.5, 7, 0), App.Vector(-82.5, 2.5, 0)),
    Part.LineSegment(App.Vector(-82.5, 2.5, 0), App.Vector(-117.5, 2.5, 0)),
    Part.LineSegment(App.Vector(-117.5, -7, 0), App.Vector(-117.5, -2.5, 0)),
    Part.LineSegment(App.Vector(-117.5, -2.5, 0), App.Vector(-82.5, -2.5, 0)),
    Part.LineSegment(App.Vector(-82.5, -2.5, 0), App.Vector(-82.5, -7, 0)),
    Part.LineSegment(App.Vector(-82.5, -7, 0), App.Vector(-117.5, -7, 0)),
], False)
sketch7.addConstraint([
    Sketcher.Constraint("Coincident", 0, 2, 1, 1),
    Sketcher.Constraint("Coincident", 1, 2, 2, 1),
    Sketcher.Constraint("Coincident", 2, 2, 3, 1),
    Sketcher.Constraint("Coincident", 3, 2, 0, 1),
    Sketcher.Constraint("Coincident", 4, 2, 5, 1),
    Sketcher.Constraint("Coincident", 5, 2, 6, 1),
    Sketcher.Constraint("Coincident", 6, 2, 7, 1),
    Sketcher.Constraint("Coincident", 7, 2, 4, 1),
    Sketcher.Constraint("Coincident", 8, 2, 9, 1),
    Sketcher.Constraint("Coincident", 9, 2, 10, 1),
    Sketcher.Constraint("Coincident", 10, 2, 11, 1),
    Sketcher.Constraint("Coincident", 11, 2, 8, 1),
    Sketcher.Constraint("Coincident", 12, 2, 13, 1),
    Sketcher.Constraint("Coincident", 13, 2, 14, 1),
    Sketcher.Constraint("Coincident", 14, 2, 15, 1),
    Sketcher.Constraint("Coincident", 15, 2, 12, 1),
    Sketcher.Constraint("Vertical", 0),
    Sketcher.Constraint("Horizontal", 1),
    Sketcher.Constraint("Vertical", 2),
    Sketcher.Constraint("Horizontal", 3),
    Sketcher.Constraint("Vertical", 4),
    Sketcher.Constraint("Horizontal", 5),
    Sketcher.Constraint("Vertical", 6),
    Sketcher.Constraint("Horizontal", 7),
    Sketcher.Constraint("Vertical", 8),
    Sketcher.Constraint("Horizontal", 9),
    Sketcher.Constraint("Vertical", 10),
    Sketcher.Constraint("Horizontal", 11),
    Sketcher.Constraint("Vertical", 12),
    Sketcher.Constraint("Horizontal", 13),
    Sketcher.Constraint("Vertical", 14),
    Sketcher.Constraint("Horizontal", 15),
    Sketcher.Constraint("Symmetric", 6, 2, 8, 2, -1, 1),
    Sketcher.Constraint("Symmetric", 4, 2, 10, 2, -1, 1),
    Sketcher.Constraint("Symmetric", 2, 2, 12, 2, -1, 1),
    Sketcher.Constraint("Symmetric", 0, 2, 14, 2, -1, 1),
    Sketcher.Constraint("Symmetric", 1, 2, 8, 2, -2),
    Sketcher.Constraint("Symmetric", 3, 2, 10, 2, -2),
    Sketcher.Constraint("DistanceX", 1, 1, 1, 2, 35.0),
    Sketcher.Constraint("DistanceY", 0, 1, 0, 2, 4.5),
    Sketcher.Constraint("DistanceX", 8, 2, 0, 2, 200.0),
    Sketcher.Constraint("DistanceY", -1, 1, 0, 2, 6.950418),
])
pocket6 = body.newObject("PartDesign::Pocket", "Pocket005")
pocket6.Profile = sketch7
pocket6.Type = "ThroughAll"
pocket6.Reversed = True

sketch8 = body.newObject("Sketcher::SketchObject", "Sketch007")
sketch8.AttachmentSupport = (doc.getObject("XZ_Plane"), [""])
sketch8.MapMode = "FlatFace"
sketch8.AttachmentOffset = App.Placement(App.Vector(0, 0, -10), App.Rotation())
sketch8.addGeometry([
    Part.LineSegment(App.Vector(-117.5, -11, 0), App.Vector(-117.5, 11, 0)),
    Part.LineSegment(App.Vector(-117.5, 11, 0), App.Vector(-114.5, 11, 0)),
    Part.LineSegment(App.Vector(-114.5, 11, 0), App.Vector(-114.5, -11, 0)),
    Part.LineSegment(App.Vector(-114.5, -11, 0), App.Vector(-117.5, -11, 0)),
], False)
sketch8.addConstraint([
    Sketcher.Constraint("Coincident", 0, 2, 1, 1),
    Sketcher.Constraint("Coincident", 1, 2, 2, 1),
    Sketcher.Constraint("Coincident", 2, 2, 3, 1),
    Sketcher.Constraint("Coincident", 3, 2, 0, 1),
    Sketcher.Constraint("Vertical", 0),
    Sketcher.Constraint("Horizontal", 1),
    Sketcher.Constraint("Vertical", 2),
    Sketcher.Constraint("Horizontal", 3),
    Sketcher.Constraint("DistanceX", 1, 1, 1, 2, 3.0),
    Sketcher.Constraint("DistanceY", 0, 1, 0, 2, 22.0),
    Sketcher.Constraint("DistanceY", -1, 1, 0, 2, 11.0),
    Sketcher.Constraint("DistanceX", 0, 2, -1, 1, 117.5),
])
pocket7 = body.newObject("PartDesign::Pocket", "Pocket006")
pocket7.Profile = sketch8
pocket7.Type = "ThroughAll"
pocket7.Reversed = True

doc.recompute()
